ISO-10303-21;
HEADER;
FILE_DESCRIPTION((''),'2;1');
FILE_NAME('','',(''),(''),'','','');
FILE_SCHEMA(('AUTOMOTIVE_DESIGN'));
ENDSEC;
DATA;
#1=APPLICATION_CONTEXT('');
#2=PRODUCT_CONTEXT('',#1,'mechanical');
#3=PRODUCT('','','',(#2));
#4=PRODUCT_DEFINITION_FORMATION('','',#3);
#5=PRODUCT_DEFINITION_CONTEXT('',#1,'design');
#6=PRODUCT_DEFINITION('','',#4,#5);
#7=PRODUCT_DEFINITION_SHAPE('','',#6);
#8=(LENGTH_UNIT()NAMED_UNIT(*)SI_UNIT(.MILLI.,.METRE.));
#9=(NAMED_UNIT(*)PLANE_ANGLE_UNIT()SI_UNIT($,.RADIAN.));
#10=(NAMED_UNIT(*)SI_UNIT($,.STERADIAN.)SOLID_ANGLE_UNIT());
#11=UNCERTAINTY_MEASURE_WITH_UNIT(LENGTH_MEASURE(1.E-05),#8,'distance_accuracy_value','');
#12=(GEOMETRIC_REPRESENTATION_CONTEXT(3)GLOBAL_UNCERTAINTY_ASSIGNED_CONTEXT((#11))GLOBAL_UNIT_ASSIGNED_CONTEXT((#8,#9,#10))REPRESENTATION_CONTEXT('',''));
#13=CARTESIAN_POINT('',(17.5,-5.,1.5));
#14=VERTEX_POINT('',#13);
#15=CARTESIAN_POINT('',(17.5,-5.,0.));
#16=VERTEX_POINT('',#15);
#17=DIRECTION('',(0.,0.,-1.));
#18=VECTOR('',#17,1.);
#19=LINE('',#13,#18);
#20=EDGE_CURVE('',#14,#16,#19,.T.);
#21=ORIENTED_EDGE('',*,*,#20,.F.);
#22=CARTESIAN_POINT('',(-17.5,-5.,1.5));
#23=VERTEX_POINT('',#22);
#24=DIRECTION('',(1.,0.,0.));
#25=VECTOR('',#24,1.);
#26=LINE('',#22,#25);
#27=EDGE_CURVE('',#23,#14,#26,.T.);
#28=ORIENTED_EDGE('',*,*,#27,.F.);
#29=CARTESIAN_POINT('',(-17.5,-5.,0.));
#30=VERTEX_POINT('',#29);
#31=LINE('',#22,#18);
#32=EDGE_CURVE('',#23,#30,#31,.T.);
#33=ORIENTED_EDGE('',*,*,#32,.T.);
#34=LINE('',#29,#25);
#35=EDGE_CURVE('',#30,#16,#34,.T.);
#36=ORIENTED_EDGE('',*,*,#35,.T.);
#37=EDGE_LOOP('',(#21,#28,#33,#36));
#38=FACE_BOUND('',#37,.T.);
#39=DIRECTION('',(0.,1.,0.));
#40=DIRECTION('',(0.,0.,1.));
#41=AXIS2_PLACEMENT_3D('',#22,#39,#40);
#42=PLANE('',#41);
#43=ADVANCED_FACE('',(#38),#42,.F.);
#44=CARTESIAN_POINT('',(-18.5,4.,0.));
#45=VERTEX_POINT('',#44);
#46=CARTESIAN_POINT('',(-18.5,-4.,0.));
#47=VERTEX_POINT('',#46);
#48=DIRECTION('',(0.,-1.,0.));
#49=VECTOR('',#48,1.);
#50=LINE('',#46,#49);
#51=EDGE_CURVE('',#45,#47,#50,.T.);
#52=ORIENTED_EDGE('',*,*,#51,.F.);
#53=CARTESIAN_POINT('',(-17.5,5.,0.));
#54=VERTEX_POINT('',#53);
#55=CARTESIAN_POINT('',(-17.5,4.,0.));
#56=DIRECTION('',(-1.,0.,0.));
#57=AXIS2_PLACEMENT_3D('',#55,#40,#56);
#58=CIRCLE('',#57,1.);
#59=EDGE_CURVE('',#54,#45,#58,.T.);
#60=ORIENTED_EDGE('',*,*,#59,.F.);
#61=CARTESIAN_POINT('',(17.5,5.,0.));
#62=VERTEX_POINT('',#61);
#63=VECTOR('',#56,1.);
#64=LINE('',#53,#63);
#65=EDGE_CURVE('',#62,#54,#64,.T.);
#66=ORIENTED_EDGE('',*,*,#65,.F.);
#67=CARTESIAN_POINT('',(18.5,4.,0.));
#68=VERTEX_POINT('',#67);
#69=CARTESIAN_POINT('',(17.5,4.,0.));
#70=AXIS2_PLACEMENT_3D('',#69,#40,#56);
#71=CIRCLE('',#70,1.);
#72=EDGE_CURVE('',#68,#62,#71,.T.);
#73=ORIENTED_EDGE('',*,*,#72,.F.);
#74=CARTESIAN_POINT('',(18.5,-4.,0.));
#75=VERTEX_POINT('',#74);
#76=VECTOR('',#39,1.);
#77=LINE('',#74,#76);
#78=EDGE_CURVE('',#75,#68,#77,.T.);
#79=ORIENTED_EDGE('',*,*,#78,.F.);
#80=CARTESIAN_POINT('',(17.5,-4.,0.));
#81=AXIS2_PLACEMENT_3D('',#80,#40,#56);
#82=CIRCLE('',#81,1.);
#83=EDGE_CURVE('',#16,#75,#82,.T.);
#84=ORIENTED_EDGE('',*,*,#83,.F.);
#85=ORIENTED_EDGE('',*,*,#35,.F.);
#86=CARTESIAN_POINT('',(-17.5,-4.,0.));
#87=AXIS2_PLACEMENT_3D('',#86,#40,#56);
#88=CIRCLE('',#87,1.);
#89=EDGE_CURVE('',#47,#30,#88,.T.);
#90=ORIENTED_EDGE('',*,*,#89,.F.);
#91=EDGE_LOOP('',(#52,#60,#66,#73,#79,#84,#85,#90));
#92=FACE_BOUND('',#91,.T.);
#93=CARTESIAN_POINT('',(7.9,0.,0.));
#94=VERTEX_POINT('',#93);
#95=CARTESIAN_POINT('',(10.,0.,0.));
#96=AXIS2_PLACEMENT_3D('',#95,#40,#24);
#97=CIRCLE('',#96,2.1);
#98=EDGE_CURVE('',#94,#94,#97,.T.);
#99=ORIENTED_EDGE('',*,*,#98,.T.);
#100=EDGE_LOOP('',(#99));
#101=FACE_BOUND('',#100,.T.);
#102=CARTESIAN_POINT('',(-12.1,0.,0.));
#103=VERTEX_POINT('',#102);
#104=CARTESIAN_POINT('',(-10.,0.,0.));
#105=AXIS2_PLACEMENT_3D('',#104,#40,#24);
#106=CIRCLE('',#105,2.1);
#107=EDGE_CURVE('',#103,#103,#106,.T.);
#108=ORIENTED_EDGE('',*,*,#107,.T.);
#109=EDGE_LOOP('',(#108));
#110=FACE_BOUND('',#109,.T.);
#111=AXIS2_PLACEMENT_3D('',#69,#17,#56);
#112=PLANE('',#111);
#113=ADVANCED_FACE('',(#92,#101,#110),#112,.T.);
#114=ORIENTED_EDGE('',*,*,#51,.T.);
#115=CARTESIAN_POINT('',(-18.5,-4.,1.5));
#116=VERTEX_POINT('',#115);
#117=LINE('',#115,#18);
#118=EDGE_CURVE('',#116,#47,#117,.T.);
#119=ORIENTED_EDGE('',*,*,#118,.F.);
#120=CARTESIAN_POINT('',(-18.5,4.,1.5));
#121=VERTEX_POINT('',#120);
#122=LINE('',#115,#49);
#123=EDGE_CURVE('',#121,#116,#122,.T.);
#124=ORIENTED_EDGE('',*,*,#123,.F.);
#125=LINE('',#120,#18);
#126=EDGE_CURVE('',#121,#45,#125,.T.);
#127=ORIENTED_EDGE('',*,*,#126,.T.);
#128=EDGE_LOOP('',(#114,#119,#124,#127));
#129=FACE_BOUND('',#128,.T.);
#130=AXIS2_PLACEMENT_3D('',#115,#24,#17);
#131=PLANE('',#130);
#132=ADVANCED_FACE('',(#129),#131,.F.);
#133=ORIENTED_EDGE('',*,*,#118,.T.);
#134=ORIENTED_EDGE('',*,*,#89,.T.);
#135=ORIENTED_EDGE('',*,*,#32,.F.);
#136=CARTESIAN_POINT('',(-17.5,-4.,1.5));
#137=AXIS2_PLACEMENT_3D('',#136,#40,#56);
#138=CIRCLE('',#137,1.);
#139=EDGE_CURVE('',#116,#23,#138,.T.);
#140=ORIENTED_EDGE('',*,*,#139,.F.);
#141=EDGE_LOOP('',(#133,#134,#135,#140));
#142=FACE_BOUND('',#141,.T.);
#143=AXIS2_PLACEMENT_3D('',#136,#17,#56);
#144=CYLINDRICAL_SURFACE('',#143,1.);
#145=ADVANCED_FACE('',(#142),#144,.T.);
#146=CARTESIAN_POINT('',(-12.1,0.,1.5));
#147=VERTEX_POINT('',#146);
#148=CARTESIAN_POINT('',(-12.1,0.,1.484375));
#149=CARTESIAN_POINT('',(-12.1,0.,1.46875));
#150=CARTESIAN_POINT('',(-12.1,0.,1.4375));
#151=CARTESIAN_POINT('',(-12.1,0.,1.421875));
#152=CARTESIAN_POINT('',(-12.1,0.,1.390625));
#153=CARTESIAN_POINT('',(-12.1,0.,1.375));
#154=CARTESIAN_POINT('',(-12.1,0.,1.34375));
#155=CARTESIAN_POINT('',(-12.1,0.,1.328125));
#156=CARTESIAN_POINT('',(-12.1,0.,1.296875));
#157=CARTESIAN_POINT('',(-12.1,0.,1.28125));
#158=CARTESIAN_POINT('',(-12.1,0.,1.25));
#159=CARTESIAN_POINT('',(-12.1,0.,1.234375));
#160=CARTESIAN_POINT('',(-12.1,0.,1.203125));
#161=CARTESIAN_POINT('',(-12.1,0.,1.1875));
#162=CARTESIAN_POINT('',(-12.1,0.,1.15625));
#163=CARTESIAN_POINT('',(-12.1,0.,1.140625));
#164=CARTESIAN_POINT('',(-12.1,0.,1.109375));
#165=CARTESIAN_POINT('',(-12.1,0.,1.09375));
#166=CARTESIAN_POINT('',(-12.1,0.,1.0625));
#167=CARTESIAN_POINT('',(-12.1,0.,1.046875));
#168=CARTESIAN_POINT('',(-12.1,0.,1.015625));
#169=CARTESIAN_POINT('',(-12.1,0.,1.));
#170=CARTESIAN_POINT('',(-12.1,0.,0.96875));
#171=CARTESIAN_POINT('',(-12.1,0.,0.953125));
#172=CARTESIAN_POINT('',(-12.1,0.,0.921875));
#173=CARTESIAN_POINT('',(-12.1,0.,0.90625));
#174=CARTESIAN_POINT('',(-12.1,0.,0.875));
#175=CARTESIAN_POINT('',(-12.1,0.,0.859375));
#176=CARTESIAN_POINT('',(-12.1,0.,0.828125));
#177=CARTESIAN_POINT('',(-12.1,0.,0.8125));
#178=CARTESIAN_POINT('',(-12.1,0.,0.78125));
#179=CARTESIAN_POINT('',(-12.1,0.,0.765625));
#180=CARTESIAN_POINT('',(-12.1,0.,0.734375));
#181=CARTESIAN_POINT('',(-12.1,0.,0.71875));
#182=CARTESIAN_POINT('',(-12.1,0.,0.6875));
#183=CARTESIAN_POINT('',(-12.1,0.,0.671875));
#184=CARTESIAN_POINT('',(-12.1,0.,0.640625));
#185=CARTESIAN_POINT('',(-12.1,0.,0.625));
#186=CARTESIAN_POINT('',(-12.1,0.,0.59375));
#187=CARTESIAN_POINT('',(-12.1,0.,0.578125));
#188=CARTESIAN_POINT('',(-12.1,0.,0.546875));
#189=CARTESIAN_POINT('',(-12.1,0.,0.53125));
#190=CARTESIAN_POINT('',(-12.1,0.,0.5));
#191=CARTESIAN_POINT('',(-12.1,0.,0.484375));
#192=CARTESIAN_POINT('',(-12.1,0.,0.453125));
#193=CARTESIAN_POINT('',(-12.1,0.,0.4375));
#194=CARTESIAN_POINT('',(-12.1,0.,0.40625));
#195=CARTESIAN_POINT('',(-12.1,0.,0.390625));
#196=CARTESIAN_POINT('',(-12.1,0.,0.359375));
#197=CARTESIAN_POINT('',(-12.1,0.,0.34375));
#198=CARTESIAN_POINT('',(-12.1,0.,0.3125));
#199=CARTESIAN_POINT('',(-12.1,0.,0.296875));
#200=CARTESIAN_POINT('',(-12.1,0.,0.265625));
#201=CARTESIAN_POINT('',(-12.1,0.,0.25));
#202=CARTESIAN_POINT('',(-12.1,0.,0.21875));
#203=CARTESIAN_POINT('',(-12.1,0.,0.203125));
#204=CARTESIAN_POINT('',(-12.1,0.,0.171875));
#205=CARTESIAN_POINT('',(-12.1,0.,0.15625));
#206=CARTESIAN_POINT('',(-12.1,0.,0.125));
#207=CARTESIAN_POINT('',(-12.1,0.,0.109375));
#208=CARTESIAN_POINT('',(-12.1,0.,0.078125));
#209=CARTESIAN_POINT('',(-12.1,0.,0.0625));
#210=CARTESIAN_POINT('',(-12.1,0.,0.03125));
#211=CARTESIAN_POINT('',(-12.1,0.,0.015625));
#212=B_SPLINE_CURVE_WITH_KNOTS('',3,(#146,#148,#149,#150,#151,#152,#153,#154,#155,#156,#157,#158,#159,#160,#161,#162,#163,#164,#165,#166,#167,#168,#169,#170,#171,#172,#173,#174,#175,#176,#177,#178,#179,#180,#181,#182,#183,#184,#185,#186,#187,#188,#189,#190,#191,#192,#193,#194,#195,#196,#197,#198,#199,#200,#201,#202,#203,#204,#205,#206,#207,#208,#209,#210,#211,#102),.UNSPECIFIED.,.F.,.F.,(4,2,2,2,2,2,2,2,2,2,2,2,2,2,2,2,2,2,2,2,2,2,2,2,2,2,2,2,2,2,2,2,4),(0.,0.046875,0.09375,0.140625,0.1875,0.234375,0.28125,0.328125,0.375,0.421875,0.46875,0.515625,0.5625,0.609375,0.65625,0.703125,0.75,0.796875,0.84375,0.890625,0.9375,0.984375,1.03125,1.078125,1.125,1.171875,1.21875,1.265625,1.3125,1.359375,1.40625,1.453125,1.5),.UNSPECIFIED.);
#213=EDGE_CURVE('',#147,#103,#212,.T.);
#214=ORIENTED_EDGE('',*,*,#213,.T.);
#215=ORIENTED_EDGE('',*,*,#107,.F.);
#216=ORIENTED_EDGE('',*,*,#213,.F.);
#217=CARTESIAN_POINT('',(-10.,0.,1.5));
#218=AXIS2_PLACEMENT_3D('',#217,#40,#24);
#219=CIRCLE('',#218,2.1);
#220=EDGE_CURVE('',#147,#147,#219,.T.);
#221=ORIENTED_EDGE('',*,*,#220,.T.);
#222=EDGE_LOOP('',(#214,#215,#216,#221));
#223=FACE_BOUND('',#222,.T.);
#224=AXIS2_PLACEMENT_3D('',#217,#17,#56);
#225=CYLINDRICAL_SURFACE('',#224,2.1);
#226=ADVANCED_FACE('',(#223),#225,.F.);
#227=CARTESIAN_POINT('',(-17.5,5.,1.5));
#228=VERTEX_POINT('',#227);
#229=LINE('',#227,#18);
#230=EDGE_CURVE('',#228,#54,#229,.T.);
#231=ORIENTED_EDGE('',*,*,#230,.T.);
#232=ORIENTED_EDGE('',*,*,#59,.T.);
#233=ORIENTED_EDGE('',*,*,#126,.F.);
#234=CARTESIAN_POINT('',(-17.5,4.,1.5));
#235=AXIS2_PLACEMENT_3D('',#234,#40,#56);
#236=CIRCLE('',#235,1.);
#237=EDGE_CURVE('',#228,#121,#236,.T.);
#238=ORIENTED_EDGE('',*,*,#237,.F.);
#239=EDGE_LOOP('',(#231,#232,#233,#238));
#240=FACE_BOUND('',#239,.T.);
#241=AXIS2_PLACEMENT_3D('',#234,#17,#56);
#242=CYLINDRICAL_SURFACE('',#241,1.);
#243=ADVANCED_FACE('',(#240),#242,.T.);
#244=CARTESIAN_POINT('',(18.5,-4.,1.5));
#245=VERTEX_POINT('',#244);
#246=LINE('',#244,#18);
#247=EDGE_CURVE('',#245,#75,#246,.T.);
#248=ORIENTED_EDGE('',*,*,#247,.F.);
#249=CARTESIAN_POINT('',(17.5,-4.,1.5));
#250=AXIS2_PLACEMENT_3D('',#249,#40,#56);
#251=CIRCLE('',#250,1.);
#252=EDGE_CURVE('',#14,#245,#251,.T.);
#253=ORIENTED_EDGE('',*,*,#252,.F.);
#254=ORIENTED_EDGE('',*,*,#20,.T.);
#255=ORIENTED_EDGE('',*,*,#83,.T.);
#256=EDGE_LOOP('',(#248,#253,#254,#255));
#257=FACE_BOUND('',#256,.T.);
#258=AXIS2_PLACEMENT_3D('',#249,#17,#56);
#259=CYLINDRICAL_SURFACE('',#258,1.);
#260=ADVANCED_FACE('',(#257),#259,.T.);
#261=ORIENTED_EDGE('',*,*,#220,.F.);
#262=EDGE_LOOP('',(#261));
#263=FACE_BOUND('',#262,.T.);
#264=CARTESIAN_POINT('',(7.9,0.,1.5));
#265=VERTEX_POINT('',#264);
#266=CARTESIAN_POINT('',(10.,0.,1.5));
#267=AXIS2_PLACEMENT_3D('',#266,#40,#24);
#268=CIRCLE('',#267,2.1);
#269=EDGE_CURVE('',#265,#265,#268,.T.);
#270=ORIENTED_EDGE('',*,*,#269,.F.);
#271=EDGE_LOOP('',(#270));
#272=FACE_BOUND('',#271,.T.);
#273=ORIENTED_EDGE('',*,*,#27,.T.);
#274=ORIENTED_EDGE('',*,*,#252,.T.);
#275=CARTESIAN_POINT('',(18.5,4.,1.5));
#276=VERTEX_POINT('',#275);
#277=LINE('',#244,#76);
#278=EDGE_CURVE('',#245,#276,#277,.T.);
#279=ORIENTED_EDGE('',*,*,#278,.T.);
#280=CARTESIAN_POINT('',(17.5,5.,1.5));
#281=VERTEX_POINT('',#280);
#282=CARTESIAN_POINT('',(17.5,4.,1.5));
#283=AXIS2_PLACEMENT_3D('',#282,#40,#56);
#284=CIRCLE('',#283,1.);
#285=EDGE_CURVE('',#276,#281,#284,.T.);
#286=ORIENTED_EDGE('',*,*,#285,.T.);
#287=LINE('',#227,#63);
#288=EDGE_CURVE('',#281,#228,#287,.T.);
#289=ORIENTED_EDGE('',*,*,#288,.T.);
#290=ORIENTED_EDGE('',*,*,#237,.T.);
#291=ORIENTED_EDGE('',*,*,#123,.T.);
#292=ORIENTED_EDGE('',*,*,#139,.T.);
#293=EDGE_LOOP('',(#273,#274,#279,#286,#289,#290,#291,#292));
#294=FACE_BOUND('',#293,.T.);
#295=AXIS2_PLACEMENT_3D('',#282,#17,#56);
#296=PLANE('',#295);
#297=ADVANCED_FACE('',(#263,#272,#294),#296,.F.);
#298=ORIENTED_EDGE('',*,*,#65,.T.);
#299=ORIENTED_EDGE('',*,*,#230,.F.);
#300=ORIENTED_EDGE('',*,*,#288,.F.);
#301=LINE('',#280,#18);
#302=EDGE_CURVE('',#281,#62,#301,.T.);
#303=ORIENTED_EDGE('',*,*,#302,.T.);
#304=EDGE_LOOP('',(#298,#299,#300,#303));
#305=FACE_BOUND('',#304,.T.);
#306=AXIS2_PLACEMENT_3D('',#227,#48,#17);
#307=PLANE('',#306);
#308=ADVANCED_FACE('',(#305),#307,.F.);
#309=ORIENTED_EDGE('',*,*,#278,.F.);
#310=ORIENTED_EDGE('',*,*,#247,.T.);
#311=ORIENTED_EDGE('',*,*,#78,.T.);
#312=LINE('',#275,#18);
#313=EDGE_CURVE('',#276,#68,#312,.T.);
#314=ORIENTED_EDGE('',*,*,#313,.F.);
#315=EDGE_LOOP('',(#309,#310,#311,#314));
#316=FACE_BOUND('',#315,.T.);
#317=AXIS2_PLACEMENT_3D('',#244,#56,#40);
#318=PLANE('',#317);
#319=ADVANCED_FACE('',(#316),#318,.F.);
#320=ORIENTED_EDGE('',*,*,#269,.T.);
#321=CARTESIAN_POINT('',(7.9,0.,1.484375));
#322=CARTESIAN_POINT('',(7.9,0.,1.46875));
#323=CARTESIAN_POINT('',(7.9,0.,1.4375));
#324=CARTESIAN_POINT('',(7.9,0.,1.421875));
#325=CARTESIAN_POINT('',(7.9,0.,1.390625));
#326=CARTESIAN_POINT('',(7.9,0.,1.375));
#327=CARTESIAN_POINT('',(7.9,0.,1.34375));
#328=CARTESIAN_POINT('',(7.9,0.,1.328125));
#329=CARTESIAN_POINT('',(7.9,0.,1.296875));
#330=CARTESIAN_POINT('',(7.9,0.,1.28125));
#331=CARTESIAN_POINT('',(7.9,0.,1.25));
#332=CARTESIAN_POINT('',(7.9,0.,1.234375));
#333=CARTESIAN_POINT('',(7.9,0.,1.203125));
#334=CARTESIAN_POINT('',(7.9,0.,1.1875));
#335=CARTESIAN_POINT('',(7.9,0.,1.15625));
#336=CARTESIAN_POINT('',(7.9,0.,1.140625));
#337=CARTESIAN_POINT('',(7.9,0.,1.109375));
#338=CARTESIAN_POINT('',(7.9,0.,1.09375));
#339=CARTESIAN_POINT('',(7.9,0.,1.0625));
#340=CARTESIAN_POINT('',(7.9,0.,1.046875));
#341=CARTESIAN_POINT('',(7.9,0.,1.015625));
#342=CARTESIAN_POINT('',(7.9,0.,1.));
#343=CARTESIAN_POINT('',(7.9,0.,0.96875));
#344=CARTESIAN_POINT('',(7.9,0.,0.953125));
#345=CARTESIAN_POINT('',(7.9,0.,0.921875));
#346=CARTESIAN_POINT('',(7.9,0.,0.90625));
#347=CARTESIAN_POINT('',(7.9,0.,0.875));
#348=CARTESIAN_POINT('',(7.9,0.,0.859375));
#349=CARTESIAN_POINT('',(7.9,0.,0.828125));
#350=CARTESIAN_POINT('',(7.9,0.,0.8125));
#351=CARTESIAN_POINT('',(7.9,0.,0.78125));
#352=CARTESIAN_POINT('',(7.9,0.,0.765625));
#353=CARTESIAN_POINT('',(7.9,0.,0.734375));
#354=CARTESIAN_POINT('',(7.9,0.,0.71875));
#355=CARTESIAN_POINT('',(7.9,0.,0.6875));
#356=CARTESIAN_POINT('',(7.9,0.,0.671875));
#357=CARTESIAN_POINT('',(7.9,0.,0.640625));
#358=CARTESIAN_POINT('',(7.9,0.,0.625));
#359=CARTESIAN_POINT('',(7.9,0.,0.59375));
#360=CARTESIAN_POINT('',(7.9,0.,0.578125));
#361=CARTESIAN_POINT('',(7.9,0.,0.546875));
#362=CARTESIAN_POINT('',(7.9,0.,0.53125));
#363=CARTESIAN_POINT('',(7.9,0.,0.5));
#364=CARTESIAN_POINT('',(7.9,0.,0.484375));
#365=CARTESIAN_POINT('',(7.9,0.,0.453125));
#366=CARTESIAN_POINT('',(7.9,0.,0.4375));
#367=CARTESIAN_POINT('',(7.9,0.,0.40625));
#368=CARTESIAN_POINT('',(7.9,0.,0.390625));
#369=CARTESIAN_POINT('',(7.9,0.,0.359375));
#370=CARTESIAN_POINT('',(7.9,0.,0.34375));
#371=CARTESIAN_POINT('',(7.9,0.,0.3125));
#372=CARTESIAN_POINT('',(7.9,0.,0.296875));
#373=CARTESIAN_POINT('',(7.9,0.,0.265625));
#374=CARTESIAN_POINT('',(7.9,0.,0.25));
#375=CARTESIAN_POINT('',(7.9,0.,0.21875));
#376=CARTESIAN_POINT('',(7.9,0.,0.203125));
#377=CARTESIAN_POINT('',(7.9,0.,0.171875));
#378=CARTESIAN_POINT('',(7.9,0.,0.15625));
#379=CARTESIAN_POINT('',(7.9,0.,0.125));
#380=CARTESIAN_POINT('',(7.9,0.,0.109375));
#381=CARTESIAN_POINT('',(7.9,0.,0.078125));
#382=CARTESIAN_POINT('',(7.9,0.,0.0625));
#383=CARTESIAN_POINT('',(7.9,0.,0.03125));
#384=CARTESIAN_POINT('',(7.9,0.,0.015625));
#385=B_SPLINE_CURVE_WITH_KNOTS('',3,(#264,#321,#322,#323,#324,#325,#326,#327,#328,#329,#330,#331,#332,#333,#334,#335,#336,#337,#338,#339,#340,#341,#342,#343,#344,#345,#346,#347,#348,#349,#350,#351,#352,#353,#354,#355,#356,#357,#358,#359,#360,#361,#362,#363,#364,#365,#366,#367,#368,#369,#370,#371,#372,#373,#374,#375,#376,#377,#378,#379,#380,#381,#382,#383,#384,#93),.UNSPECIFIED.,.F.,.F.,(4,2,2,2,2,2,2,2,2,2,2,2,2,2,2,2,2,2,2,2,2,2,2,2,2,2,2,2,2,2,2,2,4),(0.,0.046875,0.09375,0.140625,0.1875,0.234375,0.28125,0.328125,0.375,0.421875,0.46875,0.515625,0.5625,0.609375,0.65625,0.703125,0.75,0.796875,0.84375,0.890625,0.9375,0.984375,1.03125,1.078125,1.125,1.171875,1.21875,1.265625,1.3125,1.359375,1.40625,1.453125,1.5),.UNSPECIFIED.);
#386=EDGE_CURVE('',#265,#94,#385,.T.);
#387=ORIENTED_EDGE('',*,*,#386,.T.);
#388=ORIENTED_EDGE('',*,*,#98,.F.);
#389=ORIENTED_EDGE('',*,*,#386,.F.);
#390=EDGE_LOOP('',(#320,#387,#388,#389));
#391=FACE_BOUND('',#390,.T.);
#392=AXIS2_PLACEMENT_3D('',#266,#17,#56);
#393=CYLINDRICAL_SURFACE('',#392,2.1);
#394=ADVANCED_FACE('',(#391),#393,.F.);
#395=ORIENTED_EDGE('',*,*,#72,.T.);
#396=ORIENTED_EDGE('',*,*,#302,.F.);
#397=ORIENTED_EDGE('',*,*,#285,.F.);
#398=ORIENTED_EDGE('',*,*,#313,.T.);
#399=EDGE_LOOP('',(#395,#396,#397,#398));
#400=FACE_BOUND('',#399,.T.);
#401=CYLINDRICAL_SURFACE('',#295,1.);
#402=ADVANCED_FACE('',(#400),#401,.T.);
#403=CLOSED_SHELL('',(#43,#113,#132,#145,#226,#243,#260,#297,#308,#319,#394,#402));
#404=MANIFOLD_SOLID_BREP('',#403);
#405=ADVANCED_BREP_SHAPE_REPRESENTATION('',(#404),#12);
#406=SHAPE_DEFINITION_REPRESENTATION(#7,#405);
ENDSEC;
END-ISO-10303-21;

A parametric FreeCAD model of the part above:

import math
import FreeCAD as App
import Part
import Sketcher
from FreeCAD import Vector
Q = App.Units.Quantity

doc = App.newDocument("Part")
body = doc.addObject("PartDesign::Body", "Body")

sketch1 = body.newObject("Sketcher::SketchObject", "Sketch")
sketch1.AttachmentSupport = (doc.getObject("XY_Plane"), [""])
sketch1.MapMode = "FlatFace"
sketch1.addGeometry(Part.LineSegment(Vector(-17.5, -5, 0), Vector(17.5, -5, 0)), False)
sketch1.addGeometry(Part.ArcOfCircle(Part.Circle(Vector(17.5, -4, 0), Vector(0, 0, 1), 1), math.radians(-90), math.radians(0)), False)
sketch1.addGeometry(Part.LineSegment(Vector(18.5, -4, 0), Vector(18.5, 4, 0)), False)
sketch1.addGeometry(Part.ArcOfCircle(Part.Circle(Vector(17.5, 4, 0), Vector(0, 0, 1), 1), math.radians(0), math.radians(90)), False)
sketch1.addGeometry(Part.LineSegment(Vector(17.5, 5, 0), Vector(-17.5, 5, 0)), False)
sketch1.addGeometry(Part.ArcOfCircle(Part.Circle(Vector(-17.5, 4, 0), Vector(0, 0, 1), 1), math.radians(90), math.radians(180)), False)
sketch1.addGeometry(Part.LineSegment(Vector(-18.5, 4, 0), Vector(-18.5, -4, 0)), False)
sketch1.addGeometry(Part.ArcOfCircle(Part.Circle(Vector(-17.5, -4, 0), Vector(0, 0, 1), 1), math.radians(-180), math.radians(-90)), False)
sketch1.addGeometry(Part.Circle(Vector(-10, 0, 0), Vector(0, 0, 1), 2.1), False)
sketch1.addGeometry(Part.Circle(Vector(10, 0, 0), Vector(0, 0, 1), 2.1), False)
sketch1.addConstraint(Sketcher.Constraint("Tangent", 0, 2, 1, 1))
sketch1.addConstraint(Sketcher.Constraint("Tangent", 1, 2, 2, 1))
sketch1.addConstraint(Sketcher.Constraint("Tangent", 2, 2, 3, 1))
sketch1.addConstraint(Sketcher.Constraint("Tangent", 3, 2, 4, 1))
sketch1.addConstraint(Sketcher.Constraint("Tangent", 4, 2, 5, 1))
sketch1.addConstraint(Sketcher.Constraint("Tangent", 5, 2, 6, 1))
sketch1.addConstraint(Sketcher.Constraint("Tangent", 6, 2, 7, 1))
sketch1.addConstraint(Sketcher.Constraint("Tangent", 7, 2, 0, 1))
sketch1.addConstraint(Sketcher.Constraint("Horizontal", 0))
sketch1.addConstraint(Sketcher.Constraint("Vertical", 2))
sketch1.addConstraint(Sketcher.Constraint("Horizontal", 4))
sketch1.addConstraint(Sketcher.Constraint("Vertical", 6))
sketch1.addConstraint(Sketcher.Constraint("Equal", 1, 3))
sketch1.addConstraint(Sketcher.Constraint("Equal", 3, 5))
sketch1.addConstraint(Sketcher.Constraint("Equal", 5, 7))
sketch1.addConstraint(Sketcher.Constraint("Equal", 8, 9))
sketch1.addConstraint(Sketcher.Constraint("Symmetric", 1, 3, 5, 3, -1, 1))
sketch1.addConstraint(Sketcher.Constraint("Symmetric", 8, 3, 9, 3, -1, 1))
sketch1.addConstraint(Sketcher.Constraint("PointOnObject", 8, 3, -1))
sketch1.addConstraint(Sketcher.Constraint("Radius", 1, Q("1 mm")))
sketch1.addConstraint(Sketcher.Constraint("Diameter", 8, Q("4.2 mm")))
sketch1.addConstraint(Sketcher.Constraint("DistanceX", 0, 1, 0, 2, Q("35 mm")))
sketch1.addConstraint(Sketcher.Constraint("DistanceY", 2, 1, 2, 2, Q("8 mm")))
sketch1.addConstraint(Sketcher.Constraint("DistanceX", 8, 3, -1, 1, Q("10 mm")))
pad1 = body.newObject("PartDesign::Pad", "Pad")
pad1.Profile = sketch1
pad1.Length = 1.5

doc.recompute()
